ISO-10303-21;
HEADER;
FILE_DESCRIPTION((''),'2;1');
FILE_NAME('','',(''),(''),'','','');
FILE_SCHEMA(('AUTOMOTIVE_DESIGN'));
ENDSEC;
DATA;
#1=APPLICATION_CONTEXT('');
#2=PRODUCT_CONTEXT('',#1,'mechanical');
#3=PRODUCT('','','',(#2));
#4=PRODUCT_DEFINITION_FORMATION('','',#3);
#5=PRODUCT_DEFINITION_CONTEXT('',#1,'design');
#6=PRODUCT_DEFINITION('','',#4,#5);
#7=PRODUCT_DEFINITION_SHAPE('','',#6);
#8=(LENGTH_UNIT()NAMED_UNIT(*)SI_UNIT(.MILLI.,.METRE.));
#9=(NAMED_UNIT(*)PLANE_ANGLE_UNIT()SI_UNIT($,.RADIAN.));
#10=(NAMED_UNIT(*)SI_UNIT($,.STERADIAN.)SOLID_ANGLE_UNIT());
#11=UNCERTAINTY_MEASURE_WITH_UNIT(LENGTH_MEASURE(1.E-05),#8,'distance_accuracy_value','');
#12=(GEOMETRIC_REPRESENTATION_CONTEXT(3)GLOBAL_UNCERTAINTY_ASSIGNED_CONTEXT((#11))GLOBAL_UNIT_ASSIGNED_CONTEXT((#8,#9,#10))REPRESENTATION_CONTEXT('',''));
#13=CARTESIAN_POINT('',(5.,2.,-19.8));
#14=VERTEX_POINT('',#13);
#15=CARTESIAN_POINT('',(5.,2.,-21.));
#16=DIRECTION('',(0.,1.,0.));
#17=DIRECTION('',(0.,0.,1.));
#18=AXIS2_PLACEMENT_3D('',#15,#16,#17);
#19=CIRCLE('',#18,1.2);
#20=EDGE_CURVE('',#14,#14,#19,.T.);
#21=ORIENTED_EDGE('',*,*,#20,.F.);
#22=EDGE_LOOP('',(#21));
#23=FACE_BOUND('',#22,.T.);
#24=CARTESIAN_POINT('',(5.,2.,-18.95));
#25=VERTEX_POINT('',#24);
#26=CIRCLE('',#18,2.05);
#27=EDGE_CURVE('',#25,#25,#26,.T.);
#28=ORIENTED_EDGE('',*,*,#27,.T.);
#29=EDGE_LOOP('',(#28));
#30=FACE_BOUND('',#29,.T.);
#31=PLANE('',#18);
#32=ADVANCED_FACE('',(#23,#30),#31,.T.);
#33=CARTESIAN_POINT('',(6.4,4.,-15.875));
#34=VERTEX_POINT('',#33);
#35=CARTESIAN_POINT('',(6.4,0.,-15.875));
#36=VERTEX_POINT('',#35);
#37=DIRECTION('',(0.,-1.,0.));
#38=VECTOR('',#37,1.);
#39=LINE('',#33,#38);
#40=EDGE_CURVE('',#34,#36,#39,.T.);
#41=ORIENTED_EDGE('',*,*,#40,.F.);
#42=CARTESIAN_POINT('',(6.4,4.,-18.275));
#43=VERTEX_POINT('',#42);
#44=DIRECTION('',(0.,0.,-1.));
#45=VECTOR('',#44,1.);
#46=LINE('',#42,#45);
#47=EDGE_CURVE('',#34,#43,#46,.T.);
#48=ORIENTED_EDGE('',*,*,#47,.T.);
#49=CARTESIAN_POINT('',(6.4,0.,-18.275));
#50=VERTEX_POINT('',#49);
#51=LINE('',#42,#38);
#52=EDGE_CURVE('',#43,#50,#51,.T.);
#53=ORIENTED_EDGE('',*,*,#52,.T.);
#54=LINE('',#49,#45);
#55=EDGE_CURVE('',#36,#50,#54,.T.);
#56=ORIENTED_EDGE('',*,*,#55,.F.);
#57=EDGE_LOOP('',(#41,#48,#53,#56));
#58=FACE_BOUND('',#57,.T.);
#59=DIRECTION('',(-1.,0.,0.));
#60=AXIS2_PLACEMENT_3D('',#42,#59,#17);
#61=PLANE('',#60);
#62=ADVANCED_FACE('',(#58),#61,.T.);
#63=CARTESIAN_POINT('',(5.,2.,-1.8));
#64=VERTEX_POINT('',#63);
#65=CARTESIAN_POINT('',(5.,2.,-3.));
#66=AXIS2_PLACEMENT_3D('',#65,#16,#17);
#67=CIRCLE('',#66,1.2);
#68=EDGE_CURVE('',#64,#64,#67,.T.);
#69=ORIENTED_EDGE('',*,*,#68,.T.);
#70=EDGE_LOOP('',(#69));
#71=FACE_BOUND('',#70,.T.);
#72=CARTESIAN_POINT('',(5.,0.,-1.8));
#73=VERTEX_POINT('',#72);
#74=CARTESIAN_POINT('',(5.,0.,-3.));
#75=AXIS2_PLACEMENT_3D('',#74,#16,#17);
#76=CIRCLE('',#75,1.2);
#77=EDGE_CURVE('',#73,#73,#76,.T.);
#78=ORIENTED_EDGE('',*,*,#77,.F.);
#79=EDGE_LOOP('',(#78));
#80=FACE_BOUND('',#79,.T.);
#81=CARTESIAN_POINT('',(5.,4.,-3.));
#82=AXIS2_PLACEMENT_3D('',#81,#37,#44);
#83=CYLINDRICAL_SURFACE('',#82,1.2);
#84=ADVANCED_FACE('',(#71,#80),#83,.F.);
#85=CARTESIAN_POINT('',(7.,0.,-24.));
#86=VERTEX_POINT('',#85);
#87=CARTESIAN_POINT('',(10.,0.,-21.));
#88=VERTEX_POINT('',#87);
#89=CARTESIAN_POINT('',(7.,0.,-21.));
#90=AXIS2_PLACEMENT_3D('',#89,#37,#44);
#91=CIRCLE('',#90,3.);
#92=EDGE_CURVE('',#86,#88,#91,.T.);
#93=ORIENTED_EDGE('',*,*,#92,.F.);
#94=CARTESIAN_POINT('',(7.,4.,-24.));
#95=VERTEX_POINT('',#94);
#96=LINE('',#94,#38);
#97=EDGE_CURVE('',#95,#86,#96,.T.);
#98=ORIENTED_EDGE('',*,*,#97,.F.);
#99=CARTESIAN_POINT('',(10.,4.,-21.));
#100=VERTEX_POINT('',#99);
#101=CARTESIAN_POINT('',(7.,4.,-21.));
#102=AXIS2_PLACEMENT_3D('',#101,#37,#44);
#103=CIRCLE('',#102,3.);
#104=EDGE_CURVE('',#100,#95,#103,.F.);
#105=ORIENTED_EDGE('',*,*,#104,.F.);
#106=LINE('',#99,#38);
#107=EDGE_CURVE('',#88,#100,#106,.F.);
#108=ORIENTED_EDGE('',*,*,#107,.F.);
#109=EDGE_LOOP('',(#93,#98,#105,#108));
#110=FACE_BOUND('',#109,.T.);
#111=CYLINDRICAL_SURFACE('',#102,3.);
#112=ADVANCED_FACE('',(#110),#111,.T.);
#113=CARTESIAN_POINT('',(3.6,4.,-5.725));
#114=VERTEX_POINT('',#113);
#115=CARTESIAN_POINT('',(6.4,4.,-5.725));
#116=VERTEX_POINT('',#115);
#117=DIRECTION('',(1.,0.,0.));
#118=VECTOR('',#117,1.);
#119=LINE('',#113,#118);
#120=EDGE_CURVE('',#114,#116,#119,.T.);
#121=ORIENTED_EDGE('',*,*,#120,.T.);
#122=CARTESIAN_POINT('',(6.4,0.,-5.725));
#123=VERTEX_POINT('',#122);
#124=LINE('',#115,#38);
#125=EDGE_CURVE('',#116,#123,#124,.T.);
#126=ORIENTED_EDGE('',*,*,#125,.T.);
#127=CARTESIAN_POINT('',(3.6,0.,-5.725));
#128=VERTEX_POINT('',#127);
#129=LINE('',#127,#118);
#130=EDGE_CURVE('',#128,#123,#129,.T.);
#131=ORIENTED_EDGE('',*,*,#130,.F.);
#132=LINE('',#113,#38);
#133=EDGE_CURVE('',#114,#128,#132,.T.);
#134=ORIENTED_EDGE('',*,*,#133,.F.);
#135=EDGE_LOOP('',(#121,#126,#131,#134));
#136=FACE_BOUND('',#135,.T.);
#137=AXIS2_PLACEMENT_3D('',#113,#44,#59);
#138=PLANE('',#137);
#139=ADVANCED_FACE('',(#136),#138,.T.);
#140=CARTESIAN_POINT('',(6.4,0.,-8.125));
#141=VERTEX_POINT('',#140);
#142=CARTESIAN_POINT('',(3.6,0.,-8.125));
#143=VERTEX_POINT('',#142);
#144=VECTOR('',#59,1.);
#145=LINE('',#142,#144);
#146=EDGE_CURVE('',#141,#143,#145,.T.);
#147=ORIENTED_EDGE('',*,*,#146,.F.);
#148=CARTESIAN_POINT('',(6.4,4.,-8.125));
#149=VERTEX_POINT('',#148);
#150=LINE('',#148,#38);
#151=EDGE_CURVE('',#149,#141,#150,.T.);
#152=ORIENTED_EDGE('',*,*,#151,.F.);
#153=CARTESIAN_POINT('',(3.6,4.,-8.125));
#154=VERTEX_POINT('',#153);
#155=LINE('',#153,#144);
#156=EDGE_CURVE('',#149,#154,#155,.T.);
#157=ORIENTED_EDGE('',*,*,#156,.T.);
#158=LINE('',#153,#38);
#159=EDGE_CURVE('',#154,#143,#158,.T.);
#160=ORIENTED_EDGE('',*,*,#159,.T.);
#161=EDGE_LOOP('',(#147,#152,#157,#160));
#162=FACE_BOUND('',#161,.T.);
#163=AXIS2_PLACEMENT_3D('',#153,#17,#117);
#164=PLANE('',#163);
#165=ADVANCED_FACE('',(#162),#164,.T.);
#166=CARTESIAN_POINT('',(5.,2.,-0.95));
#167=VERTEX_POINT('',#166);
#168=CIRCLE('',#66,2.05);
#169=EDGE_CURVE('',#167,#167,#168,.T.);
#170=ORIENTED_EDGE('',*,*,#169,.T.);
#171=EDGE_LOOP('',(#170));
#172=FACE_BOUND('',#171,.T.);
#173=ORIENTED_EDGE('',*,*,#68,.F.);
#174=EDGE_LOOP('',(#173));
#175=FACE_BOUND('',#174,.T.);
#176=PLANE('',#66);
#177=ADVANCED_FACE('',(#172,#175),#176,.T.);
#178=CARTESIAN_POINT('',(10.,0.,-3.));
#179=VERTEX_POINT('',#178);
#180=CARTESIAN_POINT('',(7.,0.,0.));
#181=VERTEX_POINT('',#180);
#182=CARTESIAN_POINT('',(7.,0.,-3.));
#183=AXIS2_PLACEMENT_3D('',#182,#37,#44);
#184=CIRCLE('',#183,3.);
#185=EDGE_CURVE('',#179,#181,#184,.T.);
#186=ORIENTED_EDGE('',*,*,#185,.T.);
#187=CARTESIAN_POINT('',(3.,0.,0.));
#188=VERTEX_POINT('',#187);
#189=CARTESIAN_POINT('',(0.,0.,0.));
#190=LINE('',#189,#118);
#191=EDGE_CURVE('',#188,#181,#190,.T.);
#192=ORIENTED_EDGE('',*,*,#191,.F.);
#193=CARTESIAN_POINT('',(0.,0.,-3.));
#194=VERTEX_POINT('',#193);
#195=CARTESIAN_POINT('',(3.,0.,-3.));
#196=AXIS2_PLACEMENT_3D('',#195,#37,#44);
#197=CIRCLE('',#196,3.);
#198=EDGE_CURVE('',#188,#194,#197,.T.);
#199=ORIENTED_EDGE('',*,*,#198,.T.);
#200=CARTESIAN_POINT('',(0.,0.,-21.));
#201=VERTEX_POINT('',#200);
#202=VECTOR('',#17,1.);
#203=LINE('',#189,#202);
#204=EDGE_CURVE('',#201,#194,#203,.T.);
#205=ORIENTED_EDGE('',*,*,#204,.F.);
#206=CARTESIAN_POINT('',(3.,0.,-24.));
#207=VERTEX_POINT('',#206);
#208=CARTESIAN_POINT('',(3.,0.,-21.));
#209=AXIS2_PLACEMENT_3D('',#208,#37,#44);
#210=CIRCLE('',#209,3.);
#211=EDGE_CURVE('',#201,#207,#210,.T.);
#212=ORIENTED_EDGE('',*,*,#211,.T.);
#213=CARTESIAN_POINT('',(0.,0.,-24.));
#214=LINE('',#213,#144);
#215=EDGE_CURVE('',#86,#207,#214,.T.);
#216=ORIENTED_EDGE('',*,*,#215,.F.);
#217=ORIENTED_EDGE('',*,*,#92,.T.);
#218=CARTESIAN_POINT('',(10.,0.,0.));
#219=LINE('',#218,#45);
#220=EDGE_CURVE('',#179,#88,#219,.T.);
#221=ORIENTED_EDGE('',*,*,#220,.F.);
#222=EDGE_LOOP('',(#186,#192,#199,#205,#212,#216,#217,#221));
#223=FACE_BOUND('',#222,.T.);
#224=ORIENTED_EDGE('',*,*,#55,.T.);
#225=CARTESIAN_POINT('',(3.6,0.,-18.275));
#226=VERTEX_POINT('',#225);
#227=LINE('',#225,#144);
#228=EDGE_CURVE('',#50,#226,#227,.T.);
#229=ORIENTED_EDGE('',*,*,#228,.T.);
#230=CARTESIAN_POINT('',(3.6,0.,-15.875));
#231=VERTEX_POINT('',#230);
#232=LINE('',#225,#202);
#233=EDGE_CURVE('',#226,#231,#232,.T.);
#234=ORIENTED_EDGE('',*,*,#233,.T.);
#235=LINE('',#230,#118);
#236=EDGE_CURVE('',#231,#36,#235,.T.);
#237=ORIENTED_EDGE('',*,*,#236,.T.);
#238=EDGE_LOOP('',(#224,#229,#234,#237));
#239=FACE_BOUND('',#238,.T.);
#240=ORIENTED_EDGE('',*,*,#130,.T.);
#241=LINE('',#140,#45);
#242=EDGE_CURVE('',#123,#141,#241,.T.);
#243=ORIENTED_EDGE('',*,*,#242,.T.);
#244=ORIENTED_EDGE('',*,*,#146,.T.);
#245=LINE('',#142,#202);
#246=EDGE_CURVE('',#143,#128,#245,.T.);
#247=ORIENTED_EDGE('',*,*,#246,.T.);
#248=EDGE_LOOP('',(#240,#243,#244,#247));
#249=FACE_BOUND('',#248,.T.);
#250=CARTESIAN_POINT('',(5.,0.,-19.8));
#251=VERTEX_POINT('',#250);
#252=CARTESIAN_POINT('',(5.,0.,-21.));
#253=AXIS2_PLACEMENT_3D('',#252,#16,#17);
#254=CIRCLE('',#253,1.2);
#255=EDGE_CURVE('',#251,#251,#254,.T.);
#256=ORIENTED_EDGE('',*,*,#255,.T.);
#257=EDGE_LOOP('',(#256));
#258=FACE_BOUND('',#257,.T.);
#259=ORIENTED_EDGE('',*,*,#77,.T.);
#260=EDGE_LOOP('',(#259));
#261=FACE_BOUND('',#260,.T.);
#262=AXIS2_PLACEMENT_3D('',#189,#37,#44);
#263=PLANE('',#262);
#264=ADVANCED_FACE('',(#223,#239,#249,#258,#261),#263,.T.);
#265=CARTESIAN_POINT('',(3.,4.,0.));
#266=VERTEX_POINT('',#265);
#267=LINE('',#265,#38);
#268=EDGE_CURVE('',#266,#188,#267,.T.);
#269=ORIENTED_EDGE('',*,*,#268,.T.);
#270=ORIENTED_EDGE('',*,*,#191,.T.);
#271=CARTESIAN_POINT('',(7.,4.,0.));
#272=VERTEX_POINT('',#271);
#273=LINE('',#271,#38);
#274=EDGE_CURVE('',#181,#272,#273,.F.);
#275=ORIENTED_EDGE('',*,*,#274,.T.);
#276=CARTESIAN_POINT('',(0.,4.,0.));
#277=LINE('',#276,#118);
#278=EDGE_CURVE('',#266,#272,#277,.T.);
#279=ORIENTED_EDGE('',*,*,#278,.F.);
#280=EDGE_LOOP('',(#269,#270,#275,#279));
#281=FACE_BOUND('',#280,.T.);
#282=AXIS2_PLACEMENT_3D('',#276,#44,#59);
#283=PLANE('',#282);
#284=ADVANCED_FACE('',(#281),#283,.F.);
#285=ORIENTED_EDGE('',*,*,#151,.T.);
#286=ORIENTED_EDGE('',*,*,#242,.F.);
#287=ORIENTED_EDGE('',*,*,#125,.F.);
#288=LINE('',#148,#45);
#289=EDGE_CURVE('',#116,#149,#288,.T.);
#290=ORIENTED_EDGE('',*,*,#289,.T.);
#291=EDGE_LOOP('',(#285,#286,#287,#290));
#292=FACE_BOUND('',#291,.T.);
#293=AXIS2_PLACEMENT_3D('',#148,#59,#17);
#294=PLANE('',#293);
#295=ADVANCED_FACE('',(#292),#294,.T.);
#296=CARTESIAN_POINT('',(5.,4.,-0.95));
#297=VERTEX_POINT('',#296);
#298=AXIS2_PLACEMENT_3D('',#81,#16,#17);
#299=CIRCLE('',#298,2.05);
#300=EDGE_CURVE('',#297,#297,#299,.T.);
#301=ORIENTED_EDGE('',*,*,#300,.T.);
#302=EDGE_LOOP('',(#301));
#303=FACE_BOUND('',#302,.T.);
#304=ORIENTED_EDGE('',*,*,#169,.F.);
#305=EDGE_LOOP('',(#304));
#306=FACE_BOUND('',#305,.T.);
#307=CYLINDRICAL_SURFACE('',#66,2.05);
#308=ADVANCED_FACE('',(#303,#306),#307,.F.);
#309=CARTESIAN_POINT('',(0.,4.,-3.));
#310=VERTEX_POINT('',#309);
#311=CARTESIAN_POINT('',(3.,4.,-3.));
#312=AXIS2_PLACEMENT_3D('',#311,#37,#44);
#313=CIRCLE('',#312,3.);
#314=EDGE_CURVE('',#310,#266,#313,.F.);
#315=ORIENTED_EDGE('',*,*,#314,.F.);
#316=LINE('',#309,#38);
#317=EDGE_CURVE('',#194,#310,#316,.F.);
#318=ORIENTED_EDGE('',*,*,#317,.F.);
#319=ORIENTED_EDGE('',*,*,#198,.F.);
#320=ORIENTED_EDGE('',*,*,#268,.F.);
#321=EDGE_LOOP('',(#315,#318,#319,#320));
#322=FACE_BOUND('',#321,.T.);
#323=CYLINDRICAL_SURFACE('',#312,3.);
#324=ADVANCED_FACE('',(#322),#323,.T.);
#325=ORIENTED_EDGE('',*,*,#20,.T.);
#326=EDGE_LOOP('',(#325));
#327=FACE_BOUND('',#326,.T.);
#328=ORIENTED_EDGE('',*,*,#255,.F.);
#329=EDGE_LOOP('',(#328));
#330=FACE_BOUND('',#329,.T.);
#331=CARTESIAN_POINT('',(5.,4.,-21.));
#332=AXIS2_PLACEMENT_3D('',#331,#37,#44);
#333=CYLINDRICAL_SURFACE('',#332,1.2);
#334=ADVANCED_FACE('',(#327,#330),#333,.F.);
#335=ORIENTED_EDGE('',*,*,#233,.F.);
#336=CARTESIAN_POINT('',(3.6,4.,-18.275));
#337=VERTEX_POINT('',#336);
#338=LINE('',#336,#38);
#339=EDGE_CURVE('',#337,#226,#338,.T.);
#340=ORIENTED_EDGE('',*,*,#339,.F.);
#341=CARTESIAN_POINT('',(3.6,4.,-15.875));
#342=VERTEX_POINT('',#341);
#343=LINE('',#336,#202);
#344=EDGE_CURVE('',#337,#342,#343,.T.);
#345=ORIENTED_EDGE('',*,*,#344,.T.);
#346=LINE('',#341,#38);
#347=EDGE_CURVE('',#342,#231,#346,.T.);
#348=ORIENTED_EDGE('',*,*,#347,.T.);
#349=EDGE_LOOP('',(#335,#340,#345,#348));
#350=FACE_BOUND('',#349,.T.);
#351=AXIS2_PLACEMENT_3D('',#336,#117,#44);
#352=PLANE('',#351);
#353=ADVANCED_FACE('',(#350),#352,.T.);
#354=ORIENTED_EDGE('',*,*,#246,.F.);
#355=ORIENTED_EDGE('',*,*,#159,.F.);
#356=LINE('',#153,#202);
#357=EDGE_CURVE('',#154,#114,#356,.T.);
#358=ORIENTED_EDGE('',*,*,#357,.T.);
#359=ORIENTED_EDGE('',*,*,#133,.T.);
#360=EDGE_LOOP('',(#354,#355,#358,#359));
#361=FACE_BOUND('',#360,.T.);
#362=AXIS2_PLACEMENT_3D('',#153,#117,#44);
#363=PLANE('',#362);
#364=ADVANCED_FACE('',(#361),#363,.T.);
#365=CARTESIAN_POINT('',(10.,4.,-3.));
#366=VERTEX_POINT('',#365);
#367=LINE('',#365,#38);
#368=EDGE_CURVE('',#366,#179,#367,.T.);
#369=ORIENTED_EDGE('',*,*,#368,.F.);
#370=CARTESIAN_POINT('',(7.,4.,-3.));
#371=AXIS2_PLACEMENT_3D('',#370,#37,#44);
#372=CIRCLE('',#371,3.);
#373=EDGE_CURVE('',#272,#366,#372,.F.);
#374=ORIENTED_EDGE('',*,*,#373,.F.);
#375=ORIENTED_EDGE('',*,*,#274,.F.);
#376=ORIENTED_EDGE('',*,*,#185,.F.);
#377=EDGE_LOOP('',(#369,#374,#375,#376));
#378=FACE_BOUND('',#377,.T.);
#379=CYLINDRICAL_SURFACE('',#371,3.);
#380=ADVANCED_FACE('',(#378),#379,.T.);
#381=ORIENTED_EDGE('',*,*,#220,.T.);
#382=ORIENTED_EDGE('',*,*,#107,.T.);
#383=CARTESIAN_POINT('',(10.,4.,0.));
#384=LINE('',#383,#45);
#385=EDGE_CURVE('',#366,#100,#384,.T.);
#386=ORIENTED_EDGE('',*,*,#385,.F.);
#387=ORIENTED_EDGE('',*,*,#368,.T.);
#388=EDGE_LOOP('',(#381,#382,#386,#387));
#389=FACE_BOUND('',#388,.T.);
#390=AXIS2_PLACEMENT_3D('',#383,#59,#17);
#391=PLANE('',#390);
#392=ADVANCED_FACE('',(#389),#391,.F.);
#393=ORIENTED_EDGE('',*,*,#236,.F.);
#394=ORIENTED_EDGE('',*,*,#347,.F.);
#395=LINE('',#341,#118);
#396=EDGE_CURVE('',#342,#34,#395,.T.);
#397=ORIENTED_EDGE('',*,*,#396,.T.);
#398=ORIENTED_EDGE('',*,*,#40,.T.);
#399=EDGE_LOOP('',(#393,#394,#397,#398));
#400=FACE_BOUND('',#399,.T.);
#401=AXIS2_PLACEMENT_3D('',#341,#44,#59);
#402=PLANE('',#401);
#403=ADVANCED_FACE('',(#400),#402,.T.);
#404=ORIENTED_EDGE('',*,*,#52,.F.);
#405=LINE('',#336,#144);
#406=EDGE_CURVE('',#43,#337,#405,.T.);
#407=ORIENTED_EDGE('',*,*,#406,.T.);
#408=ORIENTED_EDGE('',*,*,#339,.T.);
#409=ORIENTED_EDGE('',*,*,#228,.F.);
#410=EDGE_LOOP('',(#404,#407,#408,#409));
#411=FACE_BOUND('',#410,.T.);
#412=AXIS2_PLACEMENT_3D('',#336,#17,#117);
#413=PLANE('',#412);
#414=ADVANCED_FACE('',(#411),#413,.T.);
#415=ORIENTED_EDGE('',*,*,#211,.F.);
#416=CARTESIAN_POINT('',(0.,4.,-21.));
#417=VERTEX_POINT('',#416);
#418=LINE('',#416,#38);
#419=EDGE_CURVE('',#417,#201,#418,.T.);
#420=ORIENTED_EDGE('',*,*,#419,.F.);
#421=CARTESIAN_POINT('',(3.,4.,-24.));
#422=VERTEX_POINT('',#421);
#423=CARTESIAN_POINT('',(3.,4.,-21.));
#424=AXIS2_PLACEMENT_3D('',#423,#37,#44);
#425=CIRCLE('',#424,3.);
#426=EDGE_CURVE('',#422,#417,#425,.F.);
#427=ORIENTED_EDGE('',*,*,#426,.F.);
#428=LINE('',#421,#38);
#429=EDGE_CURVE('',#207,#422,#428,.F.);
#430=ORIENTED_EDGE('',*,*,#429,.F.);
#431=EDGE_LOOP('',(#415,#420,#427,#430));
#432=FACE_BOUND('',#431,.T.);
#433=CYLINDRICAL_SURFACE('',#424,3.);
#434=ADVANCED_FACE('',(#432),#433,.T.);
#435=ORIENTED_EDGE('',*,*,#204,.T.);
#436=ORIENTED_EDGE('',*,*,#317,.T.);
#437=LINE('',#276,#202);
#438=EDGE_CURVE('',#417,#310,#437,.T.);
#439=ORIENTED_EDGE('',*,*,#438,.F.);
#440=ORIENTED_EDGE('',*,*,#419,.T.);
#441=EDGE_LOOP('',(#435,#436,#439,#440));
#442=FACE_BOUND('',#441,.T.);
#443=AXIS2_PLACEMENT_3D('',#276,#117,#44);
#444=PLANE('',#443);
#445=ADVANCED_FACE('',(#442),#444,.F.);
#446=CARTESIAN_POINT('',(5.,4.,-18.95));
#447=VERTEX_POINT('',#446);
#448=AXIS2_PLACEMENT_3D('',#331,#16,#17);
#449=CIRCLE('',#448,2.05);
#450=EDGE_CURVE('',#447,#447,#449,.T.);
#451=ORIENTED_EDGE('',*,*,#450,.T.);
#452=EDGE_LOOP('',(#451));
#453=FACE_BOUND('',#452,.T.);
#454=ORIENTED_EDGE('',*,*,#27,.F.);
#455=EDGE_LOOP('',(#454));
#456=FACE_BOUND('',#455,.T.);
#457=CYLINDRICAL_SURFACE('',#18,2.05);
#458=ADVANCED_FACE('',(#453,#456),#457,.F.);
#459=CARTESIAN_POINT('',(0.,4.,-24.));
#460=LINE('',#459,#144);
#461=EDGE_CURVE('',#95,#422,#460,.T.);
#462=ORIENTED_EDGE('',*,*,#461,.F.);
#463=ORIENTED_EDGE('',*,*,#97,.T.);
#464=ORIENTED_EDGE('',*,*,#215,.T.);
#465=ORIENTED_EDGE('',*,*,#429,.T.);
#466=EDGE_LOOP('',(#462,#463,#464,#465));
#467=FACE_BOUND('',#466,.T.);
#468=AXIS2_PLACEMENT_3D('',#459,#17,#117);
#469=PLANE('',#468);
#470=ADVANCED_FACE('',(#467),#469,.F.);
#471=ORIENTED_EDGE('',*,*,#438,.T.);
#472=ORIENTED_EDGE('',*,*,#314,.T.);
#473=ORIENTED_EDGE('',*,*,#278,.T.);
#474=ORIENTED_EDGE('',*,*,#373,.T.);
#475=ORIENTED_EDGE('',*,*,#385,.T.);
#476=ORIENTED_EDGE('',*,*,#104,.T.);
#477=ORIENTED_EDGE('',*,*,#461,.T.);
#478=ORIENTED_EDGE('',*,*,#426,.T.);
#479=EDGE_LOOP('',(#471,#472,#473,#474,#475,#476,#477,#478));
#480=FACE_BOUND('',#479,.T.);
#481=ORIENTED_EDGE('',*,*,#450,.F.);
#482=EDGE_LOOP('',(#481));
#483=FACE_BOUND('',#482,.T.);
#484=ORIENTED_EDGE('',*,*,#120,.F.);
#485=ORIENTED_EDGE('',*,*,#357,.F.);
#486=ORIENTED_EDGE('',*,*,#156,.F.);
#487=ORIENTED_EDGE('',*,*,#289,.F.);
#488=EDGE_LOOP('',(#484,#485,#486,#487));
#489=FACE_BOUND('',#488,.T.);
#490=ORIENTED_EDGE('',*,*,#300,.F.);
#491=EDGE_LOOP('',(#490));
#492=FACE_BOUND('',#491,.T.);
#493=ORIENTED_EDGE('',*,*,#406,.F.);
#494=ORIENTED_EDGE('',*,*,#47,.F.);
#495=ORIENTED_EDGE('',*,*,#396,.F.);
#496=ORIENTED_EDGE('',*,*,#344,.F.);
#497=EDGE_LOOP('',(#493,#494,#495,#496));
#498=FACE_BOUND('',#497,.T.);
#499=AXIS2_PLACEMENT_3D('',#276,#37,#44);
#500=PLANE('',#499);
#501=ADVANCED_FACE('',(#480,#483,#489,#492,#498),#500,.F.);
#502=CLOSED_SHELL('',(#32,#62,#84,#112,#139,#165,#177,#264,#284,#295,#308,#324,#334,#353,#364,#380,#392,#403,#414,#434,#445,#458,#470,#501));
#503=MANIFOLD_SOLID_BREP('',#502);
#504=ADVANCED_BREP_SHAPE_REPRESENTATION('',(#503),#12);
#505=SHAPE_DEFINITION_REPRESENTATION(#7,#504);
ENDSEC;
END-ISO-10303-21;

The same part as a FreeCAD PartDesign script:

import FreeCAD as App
import Part
import Sketcher


def edges_at(feature, points):
    """Names of the edges that pass closest to the given points."""
    edges = feature.Shape.Edges
    near = lambda p: min(range(len(edges)), key=lambda i: edges[i].distToShape(Part.Vertex(*p))[0])
    return sorted({f"Edge{near(p) + 1}" for p in points})


def add_polygon(sketch, points):
    """Adds a closed chain of lines whose ends are joined by coincident constraints."""
    first, n = sketch.GeometryCount, len(points)
    for a, b in zip(points, points[1:] + points[:1]):
        sketch.addGeometry(Part.LineSegment(App.Vector(*a, 0), App.Vector(*b, 0)), False)
    for i in range(n):
        sketch.addConstraint(Sketcher.Constraint("Coincident", first + i, 2, first + (i + 1) % n, 1))

doc = App.newDocument("Part")
body = doc.addObject("PartDesign::Body", "Body")

# Sketch on XZ plane
sketch1 = body.newObject("Sketcher::SketchObject", "Sketch")
sketch1.AttachmentSupport = (doc.getObject("XZ_Plane"), [""])
sketch1.MapMode = "FlatFace"
add_polygon(sketch1, [(0, -24), (0, 0), (10, 0), (10, -24)])  # lines 0-3
sketch1.addGeometry(Part.Circle(App.Vector(5, -3, 0), App.Vector(0, 0, 1), 1.2), False)  # 4
add_polygon(sketch1, [(6.4, -5.7), (3.6, -5.7), (3.6, -8.1), (6.4, -8.1)])  # lines 5-8
add_polygon(sketch1, [(6.4, -15.9), (3.6, -15.9), (3.6, -18.3), (6.4, -18.3)])  # lines 9-12
sketch1.addGeometry(Part.Circle(App.Vector(5, -21, 0), App.Vector(0, 0, 1), 1.2), False)  # 13
sketch1.addConstraint([
    Sketcher.Constraint("Vertical", 0),
    Sketcher.Constraint("Horizontal", 1),
    Sketcher.Constraint("Vertical", 2),
    Sketcher.Constraint("Horizontal", 3),
    Sketcher.Constraint("Horizontal", 5),
    Sketcher.Constraint("Vertical", 6),
    Sketcher.Constraint("Horizontal", 7),
    Sketcher.Constraint("Vertical", 8),
    Sketcher.Constraint("Horizontal", 9),
    Sketcher.Constraint("Vertical", 10),
    Sketcher.Constraint("Horizontal", 11),
    Sketcher.Constraint("Vertical", 12),
    Sketcher.Constraint("Coincident", 0, 2, -1, 1),
    Sketcher.Constraint("Equal", 4, 13),
    Sketcher.Constraint("Vertical", 4, 3, 13, 3),
    Sketcher.Constraint("Vertical", 6, 2, 9, 2),
    Sketcher.Constraint("Vertical", 8, 2, 11, 2),
    Sketcher.Constraint("Equal", 8, 10),
    Sketcher.Constraint("Diameter", 4, 2.4),
    Sketcher.Constraint("DistanceX", 1, 1, 1, 2, 10.0),
    Sketcher.Constraint("DistanceY", 0, 1, 0, 2, 24.0),
    Sketcher.Constraint("DistanceX", 5, 2, 5, 1, 2.8),
    Sketcher.Constraint("DistanceY", 6, 2, 6, 1, 2.4),
    Sketcher.Constraint("DistanceX", -1, 1, 4, 3, 5.0),
    Sketcher.Constraint("DistanceY", 4, 3, -1, 1, 3.0),
    Sketcher.Constraint("DistanceY", 13, 3, -1, 1, 21.0),
    Sketcher.Constraint("DistanceX", -1, 1, 5, 2, 3.6),
    Sketcher.Constraint("DistanceY", 9, 2, 6, 2, 7.75),
    Sketcher.Constraint("DistanceY", 5, 2, -1, 1, 5.725),
])
pad1 = body.newObject("PartDesign::Pad", "Pad")
pad1.Profile = sketch1
pad1.Length = 4
pad1.Reversed = True
doc.recompute()

fillet = body.newObject("PartDesign::Fillet", "Fillet")
fillet.Base = (pad1, edges_at(pad1, [
    (0, 2, -24),
    (10, 2, -24),
    (10, 2, 0),
    (0, 2, 0),
]))
fillet.Radius = 3

# Sketch on XZ plane
sketch2 = body.newObject("Sketcher::SketchObject", "Sketch001")
sketch2.AttachmentSupport = (doc.getObject("XZ_Plane"), [""])
sketch2.MapMode = "FlatFace"
sketch2.AttachmentOffset = App.Placement(App.Vector(0, 0, -4), App.Rotation())
sketch2.addGeometry([
    Part.Circle(App.Vector(5, -3, 0), App.Vector(0, 0, 1), 2),
    Part.Circle(App.Vector(5, -21, 0), App.Vector(0, 0, 1), 2),
], False)
sketch2.addConstraint([
    Sketcher.Constraint("Equal", 0, 1),
    Sketcher.Constraint("Vertical", 0, 3, 1, 3),
    Sketcher.Constraint("Diameter", 0, 4.1),
    Sketcher.Constraint("DistanceX", -1, 1, 0, 3, 5.0),
    Sketcher.Constraint("DistanceY", 0, 3, -1, 1, 3.0),
    Sketcher.Constraint("DistanceY", 1, 3, -1, 1, 21.0),
])
pocket1 = body.newObject("PartDesign::Pocket", "Pocket")
pocket1.Profile = sketch2
pocket1.Length = 2
pocket1.Reversed = True

doc.recompute()
